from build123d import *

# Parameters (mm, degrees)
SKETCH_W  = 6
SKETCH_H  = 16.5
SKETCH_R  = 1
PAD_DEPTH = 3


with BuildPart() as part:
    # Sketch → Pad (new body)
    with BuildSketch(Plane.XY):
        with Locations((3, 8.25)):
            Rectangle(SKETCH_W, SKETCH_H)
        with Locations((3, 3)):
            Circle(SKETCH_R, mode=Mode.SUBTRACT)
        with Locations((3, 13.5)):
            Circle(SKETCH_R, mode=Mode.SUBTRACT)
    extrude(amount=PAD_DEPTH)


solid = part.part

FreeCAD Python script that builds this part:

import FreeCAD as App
import Part
import Sketcher

V = App.Vector

doc = App.newDocument("Part")
body = doc.addObject("PartDesign::Body", "Body")

# Sketch on XY plane
sketch1 = body.newObject("Sketcher::SketchObject", "Sketch")
sketch1.AttachmentSupport = (doc.getObject("XY_Plane"), [""])
sketch1.MapMode = "FlatFace"
sketch1.addGeometry(Part.LineSegment(V(0, 16.5, 0), V(0, 0, 0)), False)
sketch1.addGeometry(Part.LineSegment(V(0, 0, 0), V(6, 0, 0)), False)
sketch1.addGeometry(Part.LineSegment(V(6, 0, 0), V(6, 16.5, 0)), False)
sketch1.addGeometry(Part.LineSegment(V(6, 16.5, 0), V(0, 16.5, 0)), False)
sketch1.addGeometry(Part.Circle(V(3, 3, 0), V(0, 0, 1), 1), False)
sketch1.addGeometry(Part.Circle(V(3, 13.5, 0), V(0, 0, 1), 1), False)
sketch1.addConstraint(Sketcher.Constraint("Coincident", 0, 2, 1, 1))
sketch1.addConstraint(Sketcher.Constraint("Coincident", 1, 2, 2, 1))
sketch1.addConstraint(Sketcher.Constraint("Coincident", 2, 2, 3, 1))
sketch1.addConstraint(Sketcher.Constraint("Coincident", 3, 2, 0, 1))
sketch1.addConstraint(Sketcher.Constraint("Vertical", 0))
sketch1.addConstraint(Sketcher.Constraint("Horizontal", 1))
sketch1.addConstraint(Sketcher.Constraint("Vertical", 2))
sketch1.addConstraint(Sketcher.Constraint("Horizontal", 3))
sketch1.addConstraint(Sketcher.Constraint("Coincident", 0, 2, -1, 1))
sketch1.addConstraint(Sketcher.Constraint("Equal", 4, 5))
sketch1.addConstraint(Sketcher.Constraint("Vertical", 4, 3, 5, 3))
sketch1.addConstraint(Sketcher.Constraint("Diameter", 4, 2.0))
sketch1.addConstraint(Sketcher.Constraint("DistanceX", 1, 1, 1, 2, 6.0))
sketch1.addConstraint(Sketcher.Constraint("DistanceY", 0, 2, 0, 1, 16.5))
sketch1.addConstraint(Sketcher.Constraint("DistanceX", -1, 1, 4, 3, 3.0))
sketch1.addConstraint(Sketcher.Constraint("DistanceY", -1, 1, 4, 3, 3.0))
sketch1.addConstraint(Sketcher.Constraint("DistanceY", 5, 3, 2, 2, 3.0))
pad1 = body.newObject("PartDesign::Pad", "Pad")
pad1.Profile = sketch1
pad1.Length = 3

doc.recompute()
